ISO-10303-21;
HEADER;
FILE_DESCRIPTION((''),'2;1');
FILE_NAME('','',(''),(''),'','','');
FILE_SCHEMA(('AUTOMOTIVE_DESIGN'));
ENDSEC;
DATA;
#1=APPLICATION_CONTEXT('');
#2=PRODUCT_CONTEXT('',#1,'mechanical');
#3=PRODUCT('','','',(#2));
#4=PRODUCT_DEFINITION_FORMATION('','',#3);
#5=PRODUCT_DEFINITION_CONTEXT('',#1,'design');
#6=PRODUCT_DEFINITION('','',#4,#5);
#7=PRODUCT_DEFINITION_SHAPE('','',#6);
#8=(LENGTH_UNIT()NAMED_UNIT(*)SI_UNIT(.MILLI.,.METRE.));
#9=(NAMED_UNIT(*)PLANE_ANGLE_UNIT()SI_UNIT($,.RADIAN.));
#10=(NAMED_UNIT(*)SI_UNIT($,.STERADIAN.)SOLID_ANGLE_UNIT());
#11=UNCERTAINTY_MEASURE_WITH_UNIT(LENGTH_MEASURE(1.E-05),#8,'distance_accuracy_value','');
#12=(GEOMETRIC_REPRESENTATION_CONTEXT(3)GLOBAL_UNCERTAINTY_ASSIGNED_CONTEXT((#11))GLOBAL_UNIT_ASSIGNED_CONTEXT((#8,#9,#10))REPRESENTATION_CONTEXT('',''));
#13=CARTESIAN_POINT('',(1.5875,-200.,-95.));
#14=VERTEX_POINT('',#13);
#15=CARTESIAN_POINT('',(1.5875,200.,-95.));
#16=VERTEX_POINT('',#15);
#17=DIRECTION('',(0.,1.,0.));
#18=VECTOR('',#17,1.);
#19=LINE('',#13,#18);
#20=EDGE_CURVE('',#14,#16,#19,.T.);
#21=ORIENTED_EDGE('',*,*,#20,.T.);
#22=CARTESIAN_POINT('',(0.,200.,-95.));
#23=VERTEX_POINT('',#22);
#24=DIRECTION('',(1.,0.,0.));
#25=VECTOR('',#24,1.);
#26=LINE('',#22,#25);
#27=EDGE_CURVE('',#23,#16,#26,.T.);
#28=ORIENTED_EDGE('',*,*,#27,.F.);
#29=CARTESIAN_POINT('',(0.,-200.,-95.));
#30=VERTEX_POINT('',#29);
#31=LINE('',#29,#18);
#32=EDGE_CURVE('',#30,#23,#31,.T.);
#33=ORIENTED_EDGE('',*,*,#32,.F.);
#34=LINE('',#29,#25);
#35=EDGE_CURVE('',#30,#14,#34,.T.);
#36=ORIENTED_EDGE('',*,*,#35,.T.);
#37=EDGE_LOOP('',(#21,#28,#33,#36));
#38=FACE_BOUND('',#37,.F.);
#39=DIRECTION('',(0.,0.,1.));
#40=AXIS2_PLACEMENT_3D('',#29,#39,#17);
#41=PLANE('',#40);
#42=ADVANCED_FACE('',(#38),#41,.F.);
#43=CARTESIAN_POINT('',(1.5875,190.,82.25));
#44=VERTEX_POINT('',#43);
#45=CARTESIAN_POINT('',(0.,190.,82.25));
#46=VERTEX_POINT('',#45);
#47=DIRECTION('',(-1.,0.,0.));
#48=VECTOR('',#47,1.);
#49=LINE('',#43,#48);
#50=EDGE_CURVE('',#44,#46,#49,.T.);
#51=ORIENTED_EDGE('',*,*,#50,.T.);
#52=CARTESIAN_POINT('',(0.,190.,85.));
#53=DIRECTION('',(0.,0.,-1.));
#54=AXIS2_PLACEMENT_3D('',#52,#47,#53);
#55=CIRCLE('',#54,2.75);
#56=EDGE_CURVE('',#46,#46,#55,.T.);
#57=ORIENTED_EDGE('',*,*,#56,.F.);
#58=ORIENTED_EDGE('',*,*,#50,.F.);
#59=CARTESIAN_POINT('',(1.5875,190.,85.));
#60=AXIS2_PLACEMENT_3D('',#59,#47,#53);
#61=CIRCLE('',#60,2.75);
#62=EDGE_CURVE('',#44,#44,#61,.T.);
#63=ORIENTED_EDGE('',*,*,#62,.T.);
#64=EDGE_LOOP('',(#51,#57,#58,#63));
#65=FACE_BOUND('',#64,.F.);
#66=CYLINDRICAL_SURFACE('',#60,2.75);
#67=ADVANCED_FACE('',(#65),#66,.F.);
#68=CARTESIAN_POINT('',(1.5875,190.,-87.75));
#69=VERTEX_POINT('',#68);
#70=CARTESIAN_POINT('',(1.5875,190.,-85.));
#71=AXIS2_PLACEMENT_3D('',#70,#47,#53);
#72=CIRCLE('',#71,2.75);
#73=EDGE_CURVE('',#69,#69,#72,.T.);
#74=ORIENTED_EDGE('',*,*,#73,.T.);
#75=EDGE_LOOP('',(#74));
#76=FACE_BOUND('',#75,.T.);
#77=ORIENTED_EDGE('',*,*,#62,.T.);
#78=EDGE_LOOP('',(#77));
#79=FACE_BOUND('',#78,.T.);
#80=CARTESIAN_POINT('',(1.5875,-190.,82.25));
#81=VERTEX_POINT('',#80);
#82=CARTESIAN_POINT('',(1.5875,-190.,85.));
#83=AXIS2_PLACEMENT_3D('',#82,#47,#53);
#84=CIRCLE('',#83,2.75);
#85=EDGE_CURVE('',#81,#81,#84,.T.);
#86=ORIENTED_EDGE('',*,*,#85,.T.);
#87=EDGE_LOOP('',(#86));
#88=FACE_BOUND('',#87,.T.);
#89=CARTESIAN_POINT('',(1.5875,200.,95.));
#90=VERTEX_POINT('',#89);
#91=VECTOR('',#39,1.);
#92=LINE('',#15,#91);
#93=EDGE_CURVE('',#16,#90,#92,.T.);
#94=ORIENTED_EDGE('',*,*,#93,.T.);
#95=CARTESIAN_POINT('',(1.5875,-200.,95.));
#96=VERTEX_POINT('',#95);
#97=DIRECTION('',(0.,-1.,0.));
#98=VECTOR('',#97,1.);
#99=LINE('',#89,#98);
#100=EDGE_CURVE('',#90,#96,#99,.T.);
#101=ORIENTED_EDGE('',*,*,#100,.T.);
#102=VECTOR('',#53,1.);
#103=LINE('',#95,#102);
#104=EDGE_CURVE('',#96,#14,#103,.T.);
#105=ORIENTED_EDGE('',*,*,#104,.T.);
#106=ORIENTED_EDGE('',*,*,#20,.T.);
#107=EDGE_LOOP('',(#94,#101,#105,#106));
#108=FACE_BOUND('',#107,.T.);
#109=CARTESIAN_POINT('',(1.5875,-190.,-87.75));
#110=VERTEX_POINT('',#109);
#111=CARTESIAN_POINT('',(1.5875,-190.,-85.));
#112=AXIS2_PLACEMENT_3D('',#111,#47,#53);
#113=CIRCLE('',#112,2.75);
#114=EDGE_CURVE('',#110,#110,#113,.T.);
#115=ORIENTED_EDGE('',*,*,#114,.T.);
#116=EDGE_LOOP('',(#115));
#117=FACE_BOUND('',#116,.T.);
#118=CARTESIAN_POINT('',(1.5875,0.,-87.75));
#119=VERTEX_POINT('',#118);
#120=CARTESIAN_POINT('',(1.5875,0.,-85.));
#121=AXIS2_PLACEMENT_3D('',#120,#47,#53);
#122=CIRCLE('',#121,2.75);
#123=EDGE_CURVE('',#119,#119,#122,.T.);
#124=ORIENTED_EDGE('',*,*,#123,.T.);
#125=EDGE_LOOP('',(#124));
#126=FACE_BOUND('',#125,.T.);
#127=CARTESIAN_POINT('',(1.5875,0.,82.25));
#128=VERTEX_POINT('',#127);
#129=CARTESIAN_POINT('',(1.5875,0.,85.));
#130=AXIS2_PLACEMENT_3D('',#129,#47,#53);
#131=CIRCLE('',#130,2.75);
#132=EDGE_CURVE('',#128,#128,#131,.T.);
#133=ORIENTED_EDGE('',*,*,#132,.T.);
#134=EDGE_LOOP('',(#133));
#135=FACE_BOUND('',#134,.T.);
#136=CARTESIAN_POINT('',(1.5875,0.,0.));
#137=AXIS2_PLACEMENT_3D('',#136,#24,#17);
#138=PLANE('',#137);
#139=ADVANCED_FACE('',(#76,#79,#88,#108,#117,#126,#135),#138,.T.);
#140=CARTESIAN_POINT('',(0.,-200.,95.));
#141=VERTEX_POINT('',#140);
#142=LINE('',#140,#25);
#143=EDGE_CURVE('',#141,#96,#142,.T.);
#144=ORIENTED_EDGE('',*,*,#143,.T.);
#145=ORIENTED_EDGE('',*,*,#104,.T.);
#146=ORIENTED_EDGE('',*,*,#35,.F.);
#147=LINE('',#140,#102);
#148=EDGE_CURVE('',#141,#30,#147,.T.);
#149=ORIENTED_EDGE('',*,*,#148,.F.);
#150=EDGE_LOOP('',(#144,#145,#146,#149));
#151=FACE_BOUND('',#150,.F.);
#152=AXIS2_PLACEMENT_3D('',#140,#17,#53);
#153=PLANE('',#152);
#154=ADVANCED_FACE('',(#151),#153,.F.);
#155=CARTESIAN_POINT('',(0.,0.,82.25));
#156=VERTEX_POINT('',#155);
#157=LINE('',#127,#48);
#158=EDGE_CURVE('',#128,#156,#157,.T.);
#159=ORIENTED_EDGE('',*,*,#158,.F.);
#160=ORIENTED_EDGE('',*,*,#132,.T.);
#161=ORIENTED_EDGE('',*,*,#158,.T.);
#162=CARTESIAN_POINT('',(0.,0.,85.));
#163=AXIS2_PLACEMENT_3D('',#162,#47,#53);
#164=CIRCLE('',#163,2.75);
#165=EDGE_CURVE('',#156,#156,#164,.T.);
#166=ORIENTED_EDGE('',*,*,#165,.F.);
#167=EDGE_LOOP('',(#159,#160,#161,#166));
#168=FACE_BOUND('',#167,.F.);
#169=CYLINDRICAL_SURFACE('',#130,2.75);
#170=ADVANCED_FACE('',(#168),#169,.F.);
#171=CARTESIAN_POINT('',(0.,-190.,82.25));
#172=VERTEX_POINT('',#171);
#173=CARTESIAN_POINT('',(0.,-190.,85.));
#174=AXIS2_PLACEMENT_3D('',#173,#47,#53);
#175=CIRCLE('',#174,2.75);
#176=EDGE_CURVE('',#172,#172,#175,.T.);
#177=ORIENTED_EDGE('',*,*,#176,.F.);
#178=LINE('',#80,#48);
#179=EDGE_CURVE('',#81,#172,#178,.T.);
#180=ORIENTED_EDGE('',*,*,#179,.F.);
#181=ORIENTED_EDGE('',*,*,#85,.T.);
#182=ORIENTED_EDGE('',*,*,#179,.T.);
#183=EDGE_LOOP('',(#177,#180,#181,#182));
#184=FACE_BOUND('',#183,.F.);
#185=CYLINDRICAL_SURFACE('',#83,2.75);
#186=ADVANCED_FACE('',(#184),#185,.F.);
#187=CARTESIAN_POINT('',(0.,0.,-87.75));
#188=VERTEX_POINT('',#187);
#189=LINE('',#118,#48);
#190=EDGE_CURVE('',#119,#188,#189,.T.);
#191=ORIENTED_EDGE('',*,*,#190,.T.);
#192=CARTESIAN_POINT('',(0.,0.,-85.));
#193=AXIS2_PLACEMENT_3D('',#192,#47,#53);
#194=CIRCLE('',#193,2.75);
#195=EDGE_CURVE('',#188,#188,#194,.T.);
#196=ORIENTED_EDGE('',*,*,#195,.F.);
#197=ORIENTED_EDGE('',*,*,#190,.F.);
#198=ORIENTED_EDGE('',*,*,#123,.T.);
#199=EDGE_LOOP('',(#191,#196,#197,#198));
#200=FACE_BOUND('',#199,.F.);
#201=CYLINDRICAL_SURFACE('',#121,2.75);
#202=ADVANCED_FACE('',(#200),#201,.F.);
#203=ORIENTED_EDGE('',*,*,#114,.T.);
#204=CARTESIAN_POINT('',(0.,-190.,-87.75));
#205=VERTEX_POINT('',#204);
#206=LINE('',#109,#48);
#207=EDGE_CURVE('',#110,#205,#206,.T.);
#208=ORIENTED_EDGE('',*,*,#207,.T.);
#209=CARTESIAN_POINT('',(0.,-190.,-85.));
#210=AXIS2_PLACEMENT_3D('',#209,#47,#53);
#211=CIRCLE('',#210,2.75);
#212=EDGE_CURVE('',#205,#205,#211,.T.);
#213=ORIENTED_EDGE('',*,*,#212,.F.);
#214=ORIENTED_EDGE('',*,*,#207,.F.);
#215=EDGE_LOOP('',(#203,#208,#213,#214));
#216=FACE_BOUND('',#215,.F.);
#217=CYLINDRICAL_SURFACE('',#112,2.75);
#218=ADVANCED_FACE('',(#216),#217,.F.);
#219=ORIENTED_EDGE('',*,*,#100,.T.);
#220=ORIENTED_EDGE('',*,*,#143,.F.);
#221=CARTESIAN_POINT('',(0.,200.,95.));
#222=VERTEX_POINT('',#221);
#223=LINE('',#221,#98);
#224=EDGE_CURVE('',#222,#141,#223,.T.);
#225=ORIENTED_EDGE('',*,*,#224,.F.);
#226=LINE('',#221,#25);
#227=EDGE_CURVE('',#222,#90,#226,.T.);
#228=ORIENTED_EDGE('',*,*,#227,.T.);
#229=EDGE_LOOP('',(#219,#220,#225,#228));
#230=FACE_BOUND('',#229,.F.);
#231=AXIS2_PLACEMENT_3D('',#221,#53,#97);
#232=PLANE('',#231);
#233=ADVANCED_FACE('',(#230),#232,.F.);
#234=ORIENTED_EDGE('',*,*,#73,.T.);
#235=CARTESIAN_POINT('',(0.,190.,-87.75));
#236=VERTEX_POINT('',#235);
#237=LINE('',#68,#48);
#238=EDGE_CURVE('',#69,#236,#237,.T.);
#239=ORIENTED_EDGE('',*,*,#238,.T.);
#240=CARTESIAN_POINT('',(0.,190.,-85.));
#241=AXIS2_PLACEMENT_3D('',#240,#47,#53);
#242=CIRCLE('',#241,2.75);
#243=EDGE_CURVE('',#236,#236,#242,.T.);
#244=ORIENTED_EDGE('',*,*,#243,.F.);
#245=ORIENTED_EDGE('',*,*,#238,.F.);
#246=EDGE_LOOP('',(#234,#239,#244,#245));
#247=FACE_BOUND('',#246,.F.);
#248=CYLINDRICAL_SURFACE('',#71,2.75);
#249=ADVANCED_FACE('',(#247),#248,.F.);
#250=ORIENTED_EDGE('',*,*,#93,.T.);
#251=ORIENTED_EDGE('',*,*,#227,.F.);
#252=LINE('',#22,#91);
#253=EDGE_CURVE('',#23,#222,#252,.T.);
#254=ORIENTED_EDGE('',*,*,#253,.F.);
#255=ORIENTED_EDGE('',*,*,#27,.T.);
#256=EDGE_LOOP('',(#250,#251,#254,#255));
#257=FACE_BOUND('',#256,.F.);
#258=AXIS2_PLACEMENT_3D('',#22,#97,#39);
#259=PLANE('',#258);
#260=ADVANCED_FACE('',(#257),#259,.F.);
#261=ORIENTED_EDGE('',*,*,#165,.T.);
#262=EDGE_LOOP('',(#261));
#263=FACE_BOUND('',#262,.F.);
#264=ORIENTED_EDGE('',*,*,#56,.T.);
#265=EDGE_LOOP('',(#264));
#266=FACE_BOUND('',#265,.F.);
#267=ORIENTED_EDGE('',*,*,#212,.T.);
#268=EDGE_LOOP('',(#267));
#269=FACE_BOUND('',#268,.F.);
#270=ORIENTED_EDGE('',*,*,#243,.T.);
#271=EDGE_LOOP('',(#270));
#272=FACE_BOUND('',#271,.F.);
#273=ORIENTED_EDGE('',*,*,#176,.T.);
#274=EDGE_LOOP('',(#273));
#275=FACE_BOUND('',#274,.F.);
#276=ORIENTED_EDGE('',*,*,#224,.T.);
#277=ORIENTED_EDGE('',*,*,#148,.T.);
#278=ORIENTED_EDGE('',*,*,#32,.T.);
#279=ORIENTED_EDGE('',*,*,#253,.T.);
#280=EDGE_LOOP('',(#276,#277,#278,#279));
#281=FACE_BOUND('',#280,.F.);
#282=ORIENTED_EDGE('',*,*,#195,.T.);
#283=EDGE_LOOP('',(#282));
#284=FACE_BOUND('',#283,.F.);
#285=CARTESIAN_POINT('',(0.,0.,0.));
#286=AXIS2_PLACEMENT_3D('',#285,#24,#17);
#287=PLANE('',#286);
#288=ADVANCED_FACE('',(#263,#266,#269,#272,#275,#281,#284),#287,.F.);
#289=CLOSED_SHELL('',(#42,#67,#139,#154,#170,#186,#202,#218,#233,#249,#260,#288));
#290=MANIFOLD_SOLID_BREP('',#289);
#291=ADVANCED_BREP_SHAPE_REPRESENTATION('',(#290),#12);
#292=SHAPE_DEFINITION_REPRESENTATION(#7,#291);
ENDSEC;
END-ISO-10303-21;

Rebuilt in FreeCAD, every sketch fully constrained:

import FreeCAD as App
import Part
import Sketcher

V = App.Vector
Q = App.Units.Quantity


def add_polygon(sketch, points):
    """Adds a closed chain of lines whose ends are joined by coincident constraints."""
    first, n = sketch.GeometryCount, len(points)
    for a, b in zip(points, points[1:] + points[:1]):
        sketch.addGeometry(Part.LineSegment(App.Vector(*a, 0), App.Vector(*b, 0)), False)
    for i in range(n):
        sketch.addConstraint(Sketcher.Constraint("Coincident", first + i, 2, first + (i + 1) % n, 1))

doc = App.newDocument("Part")
body = doc.addObject("PartDesign::Body", "Body")

sketch1 = body.newObject("Sketcher::SketchObject", "Sketch")
sketch1.AttachmentSupport = (doc.getObject("YZ_Plane"), [""])
sketch1.MapMode = "FlatFace"
add_polygon(sketch1, [(200, -95), (200, 95), (-200, 95), (-200, -95)])
sketch1.addConstraint([
    Sketcher.Constraint("Vertical", 0),
    Sketcher.Constraint("Horizontal", 1),
    Sketcher.Constraint("Vertical", 2),
    Sketcher.Constraint("Horizontal", 3),
    Sketcher.Constraint("Symmetric", 0, 2, 2, 2, -1, 1),
    Sketcher.Constraint("DistanceX", 1, 2, 1, 1, Q("400 mm")),
    Sketcher.Constraint("DistanceY", 0, 1, 0, 2, Q("190 mm")),
])
pad1 = body.newObject("PartDesign::Pad", "Pad")
pad1.Profile = sketch1
pad1.Length = 1.5875

sketch2 = body.newObject("Sketcher::SketchObject", "Sketch001")
sketch2.AttachmentSupport = (doc.getObject("YZ_Plane"), [""])
sketch2.MapMode = "FlatFace"
sketch2.AttachmentOffset = App.Placement(V(0, 0, 1.5875), App.Rotation())
sketch2.addGeometry([
    Part.Circle(V(190, 85, 0), V(0, 0, 1), 2.8),
    Part.Circle(V(190, -85, 0), V(0, 0, 1), 2.8),
    Part.Circle(V(-190, -85, 0), V(0, 0, 1), 2.8),
    Part.Circle(V(-190, 85, 0), V(0, 0, 1), 2.8),
    Part.Circle(V(0, 85, 0), V(0, 0, 1), 2.8),
    Part.Circle(V(0, -85, 0), V(0, 0, 1), 2.8),
], False)
sketch2.addConstraint([
    Sketcher.Constraint("Equal", 0, 1),
    Sketcher.Constraint("Equal", 1, 2),
    Sketcher.Constraint("Equal", 2, 3),
    Sketcher.Constraint("Equal", 3, 4),
    Sketcher.Constraint("Equal", 4, 5),
    Sketcher.Constraint("Symmetric", 0, 3, 2, 3, -1, 1),
    Sketcher.Constraint("Symmetric", 1, 3, 3, 3, -1, 1),
    Sketcher.Constraint("Symmetric", 4, 3, 5, 3, -1, 1),
    Sketcher.Constraint("Symmetric", 1, 3, 2, 3, -2),
    Sketcher.Constraint("PointOnObject", 4, 3, -2),
    Sketcher.Constraint("Horizontal", 3, 3, 4, 3),
    Sketcher.Constraint("Diameter", 0, Q("5.5 mm")),
    Sketcher.Constraint("DistanceX", -1, 1, 0, 3, Q("190 mm")),
    Sketcher.Constraint("DistanceY", -1, 1, 0, 3, Q("85 mm")),
])
doc.recompute()
hole = body.newObject("PartDesign::Hole", "Hole")
hole.Profile = sketch2
hole.ThreadType = "None"
hole.Diameter = 5.5
hole.DepthType = "ThroughAll"

doc.recompute()
